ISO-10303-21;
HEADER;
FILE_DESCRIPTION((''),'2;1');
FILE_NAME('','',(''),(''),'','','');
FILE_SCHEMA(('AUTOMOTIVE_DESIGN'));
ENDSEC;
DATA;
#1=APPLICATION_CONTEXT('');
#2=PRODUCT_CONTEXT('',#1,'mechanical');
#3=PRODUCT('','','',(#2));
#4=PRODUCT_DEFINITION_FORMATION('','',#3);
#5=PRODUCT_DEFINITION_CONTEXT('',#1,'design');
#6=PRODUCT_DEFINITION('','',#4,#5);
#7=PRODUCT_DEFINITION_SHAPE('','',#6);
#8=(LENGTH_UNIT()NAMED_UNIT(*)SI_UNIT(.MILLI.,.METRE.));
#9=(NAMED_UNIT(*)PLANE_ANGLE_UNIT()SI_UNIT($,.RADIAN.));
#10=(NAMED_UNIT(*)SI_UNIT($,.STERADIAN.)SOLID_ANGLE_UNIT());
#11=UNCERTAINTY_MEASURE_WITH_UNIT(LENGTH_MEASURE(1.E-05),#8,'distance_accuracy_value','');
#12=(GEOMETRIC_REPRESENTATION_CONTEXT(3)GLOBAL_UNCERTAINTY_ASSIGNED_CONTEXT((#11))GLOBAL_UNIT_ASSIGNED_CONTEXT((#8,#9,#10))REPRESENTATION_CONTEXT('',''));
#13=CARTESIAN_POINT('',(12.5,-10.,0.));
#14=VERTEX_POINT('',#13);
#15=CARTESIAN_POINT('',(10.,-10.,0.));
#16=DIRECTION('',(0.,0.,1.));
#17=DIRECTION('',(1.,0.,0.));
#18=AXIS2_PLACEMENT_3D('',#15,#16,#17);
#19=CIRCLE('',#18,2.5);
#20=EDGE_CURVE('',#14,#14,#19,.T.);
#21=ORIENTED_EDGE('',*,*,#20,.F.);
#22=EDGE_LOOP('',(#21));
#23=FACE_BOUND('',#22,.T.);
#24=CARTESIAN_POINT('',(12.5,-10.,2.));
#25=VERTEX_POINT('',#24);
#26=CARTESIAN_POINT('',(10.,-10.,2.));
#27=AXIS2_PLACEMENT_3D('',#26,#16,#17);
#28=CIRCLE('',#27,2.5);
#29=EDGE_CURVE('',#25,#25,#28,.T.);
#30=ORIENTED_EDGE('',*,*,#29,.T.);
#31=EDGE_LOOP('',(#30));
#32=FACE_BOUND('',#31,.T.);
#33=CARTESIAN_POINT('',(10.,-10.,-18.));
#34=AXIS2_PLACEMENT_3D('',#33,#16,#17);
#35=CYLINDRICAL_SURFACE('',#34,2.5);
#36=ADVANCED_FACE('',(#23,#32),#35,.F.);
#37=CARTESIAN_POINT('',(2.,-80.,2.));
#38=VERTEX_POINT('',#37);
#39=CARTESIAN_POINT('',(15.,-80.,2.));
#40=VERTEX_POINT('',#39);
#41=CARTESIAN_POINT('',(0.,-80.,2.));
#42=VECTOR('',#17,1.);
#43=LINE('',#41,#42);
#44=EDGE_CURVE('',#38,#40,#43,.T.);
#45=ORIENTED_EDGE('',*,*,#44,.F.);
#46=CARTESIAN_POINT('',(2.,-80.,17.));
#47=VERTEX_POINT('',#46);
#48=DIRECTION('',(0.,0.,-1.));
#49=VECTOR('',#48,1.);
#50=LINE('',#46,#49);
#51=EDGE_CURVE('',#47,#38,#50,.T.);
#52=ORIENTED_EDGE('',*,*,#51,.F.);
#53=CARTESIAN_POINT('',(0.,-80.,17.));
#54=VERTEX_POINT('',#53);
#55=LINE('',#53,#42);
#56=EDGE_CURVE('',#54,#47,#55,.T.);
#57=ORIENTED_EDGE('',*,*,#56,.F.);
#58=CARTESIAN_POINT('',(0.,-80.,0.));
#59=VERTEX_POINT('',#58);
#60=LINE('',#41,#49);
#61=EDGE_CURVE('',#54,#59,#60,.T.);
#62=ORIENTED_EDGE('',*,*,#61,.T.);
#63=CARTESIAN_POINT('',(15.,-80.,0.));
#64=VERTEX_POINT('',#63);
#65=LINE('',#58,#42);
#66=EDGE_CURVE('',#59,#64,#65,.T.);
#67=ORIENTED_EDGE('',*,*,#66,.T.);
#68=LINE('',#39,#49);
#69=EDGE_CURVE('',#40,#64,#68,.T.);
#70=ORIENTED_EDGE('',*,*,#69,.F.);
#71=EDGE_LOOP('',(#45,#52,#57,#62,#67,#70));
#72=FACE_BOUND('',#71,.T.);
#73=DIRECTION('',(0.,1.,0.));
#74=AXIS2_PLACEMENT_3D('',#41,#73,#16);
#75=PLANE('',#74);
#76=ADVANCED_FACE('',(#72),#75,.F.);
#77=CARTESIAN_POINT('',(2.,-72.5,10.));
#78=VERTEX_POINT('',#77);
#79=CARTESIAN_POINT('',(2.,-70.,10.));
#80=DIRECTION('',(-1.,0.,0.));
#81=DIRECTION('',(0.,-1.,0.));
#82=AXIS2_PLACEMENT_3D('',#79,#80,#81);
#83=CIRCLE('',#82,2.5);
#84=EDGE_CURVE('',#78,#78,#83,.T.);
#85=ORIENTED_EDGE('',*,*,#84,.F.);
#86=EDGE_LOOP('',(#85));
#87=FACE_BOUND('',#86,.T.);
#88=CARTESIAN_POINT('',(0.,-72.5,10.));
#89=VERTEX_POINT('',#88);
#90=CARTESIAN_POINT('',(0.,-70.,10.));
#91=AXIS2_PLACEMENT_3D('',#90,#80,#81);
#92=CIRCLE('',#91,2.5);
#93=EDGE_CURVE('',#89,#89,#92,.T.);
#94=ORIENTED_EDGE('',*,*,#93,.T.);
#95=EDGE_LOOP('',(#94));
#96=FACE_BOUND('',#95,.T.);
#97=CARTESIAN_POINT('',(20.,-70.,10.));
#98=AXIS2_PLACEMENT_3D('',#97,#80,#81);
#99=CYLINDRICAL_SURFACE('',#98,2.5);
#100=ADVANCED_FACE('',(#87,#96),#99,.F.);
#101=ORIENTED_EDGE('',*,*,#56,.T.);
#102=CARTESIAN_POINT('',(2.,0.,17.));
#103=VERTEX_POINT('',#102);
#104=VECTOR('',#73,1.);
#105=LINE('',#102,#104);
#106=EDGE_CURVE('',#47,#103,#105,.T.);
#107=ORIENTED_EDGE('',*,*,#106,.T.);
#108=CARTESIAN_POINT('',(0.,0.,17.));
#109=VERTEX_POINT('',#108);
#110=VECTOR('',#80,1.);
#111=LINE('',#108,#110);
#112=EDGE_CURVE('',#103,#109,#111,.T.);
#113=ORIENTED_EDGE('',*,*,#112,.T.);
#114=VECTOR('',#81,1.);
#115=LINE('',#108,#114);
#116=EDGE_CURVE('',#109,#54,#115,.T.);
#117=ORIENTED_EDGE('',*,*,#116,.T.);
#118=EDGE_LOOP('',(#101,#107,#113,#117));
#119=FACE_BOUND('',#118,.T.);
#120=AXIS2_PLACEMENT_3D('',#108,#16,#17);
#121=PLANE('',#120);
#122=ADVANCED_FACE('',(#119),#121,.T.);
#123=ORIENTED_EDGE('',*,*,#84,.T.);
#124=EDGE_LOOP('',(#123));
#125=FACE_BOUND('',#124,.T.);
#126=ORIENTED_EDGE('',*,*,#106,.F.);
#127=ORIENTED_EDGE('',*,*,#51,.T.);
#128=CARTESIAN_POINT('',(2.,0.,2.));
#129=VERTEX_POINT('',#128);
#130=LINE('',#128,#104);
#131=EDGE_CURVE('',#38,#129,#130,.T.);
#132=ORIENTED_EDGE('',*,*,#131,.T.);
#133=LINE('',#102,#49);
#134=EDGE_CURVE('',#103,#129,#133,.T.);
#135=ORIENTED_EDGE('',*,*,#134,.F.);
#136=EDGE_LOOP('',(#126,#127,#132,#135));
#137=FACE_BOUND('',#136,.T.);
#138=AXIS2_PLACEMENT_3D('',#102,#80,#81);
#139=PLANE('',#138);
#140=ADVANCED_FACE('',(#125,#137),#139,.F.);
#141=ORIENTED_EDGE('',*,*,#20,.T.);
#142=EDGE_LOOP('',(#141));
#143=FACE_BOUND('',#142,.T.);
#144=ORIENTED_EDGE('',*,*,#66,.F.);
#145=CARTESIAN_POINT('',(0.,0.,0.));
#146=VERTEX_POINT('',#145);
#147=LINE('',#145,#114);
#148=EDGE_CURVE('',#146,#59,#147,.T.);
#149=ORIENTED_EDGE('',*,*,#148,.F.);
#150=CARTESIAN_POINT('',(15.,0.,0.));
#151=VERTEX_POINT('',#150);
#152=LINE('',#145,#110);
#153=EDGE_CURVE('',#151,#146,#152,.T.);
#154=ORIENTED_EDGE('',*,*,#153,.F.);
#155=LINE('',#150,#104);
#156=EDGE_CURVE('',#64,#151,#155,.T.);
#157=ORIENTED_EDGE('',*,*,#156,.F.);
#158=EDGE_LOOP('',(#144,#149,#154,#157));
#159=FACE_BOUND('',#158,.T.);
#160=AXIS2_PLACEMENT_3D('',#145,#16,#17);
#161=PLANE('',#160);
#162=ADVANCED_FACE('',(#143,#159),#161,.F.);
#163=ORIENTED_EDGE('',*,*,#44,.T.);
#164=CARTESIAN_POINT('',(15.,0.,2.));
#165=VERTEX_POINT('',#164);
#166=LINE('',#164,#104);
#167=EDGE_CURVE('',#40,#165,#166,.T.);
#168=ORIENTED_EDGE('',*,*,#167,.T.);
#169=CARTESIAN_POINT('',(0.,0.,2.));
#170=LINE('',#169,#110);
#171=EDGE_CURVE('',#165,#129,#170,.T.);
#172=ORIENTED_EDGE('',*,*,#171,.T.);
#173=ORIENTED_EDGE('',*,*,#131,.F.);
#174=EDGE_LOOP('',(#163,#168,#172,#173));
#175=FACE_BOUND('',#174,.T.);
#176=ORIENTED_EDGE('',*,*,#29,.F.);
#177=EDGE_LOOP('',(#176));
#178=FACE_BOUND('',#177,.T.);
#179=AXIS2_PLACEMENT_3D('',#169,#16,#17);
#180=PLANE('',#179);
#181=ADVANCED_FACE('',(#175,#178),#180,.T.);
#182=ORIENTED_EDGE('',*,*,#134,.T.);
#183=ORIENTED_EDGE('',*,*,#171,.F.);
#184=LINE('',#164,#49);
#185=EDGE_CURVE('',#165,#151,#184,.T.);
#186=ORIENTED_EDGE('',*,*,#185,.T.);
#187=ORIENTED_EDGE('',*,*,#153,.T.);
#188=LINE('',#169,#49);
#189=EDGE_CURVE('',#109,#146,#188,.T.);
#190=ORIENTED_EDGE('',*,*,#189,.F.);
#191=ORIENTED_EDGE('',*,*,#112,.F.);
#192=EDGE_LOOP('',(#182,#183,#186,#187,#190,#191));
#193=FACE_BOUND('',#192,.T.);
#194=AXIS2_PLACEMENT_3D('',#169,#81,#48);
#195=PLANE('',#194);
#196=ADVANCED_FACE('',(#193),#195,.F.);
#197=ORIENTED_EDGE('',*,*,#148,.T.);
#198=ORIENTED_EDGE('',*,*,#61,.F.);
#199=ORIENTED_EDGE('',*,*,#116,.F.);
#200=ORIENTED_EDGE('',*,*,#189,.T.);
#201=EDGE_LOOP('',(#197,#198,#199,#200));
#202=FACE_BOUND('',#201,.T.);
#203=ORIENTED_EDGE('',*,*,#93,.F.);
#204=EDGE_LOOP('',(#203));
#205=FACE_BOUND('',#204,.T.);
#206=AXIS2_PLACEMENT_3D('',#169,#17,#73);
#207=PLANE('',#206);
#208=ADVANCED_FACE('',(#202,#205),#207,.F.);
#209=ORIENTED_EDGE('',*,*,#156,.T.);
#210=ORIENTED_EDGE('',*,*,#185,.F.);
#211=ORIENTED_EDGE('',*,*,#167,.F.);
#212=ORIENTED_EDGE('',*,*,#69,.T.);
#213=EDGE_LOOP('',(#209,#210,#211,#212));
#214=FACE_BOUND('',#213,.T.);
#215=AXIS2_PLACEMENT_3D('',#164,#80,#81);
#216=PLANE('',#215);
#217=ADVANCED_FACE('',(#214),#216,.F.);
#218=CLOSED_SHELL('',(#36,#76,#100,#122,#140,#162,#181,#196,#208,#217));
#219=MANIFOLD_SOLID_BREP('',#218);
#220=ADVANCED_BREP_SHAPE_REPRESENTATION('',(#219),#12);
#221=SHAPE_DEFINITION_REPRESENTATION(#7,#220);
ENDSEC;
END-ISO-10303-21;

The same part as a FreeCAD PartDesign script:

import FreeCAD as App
import Part
import Sketcher
Q = App.Units.Quantity

doc = App.newDocument("Part")
body = doc.addObject("PartDesign::Body", "Body")

sketch1 = doc.addObject("Sketcher::SketchObject", "Sketch")
body.addObject(sketch1)
sketch1.AttachmentSupport = (doc.XY_Plane, [""])
sketch1.MapMode = "FlatFace"
sketch1.addGeometry([
    Part.LineSegment(App.Vector(0, 0, 0), App.Vector(0, -80, 0)),
    Part.LineSegment(App.Vector(0, -80, 0), App.Vector(15, -80, 0)),
    Part.LineSegment(App.Vector(15, -80, 0), App.Vector(15, 0, 0)),
    Part.LineSegment(App.Vector(15, 0, 0), App.Vector(0, 0, 0)),
], False)
sketch1.addConstraint([
    Sketcher.Constraint("Coincident", 0, 2, 1, 1),
    Sketcher.Constraint("Coincident", 1, 2, 2, 1),
    Sketcher.Constraint("Coincident", 2, 2, 3, 1),
    Sketcher.Constraint("Coincident", 3, 2, 0, 1),
    Sketcher.Constraint("Vertical", 0),
    Sketcher.Constraint("Horizontal", 1),
    Sketcher.Constraint("Vertical", 2),
    Sketcher.Constraint("Horizontal", 3),
    Sketcher.Constraint("Coincident", 3, 2, -1, 1),
    Sketcher.Constraint("DistanceX", 1, 1, 1, 2, Q("15 mm")),
    Sketcher.Constraint("DistanceY", 0, 2, 0, 1, Q("80 mm")),
])
pad1 = doc.addObject("PartDesign::Pad", "Pad")
body.addObject(pad1)
pad1.Profile = sketch1
pad1.Length = 2

sketch2 = doc.addObject("Sketcher::SketchObject", "Sketch001")
body.addObject(sketch2)
sketch2.AttachmentSupport = (doc.XY_Plane, [""])
sketch2.MapMode = "FlatFace"
sketch2.AttachmentOffset = App.Placement(App.Vector(0, 0, 2), App.Rotation())
sketch2.addGeometry([
    Part.LineSegment(App.Vector(0, 0, 0), App.Vector(0, -80, 0)),
    Part.LineSegment(App.Vector(0, -80, 0), App.Vector(2, -80, 0)),
    Part.LineSegment(App.Vector(2, -80, 0), App.Vector(2, 0, 0)),
    Part.LineSegment(App.Vector(2, 0, 0), App.Vector(0, 0, 0)),
], False)
sketch2.addConstraint([
    Sketcher.Constraint("Coincident", 0, 2, 1, 1),
    Sketcher.Constraint("Coincident", 1, 2, 2, 1),
    Sketcher.Constraint("Coincident", 2, 2, 3, 1),
    Sketcher.Constraint("Coincident", 3, 2, 0, 1),
    Sketcher.Constraint("Vertical", 0),
    Sketcher.Constraint("Horizontal", 1),
    Sketcher.Constraint("Vertical", 2),
    Sketcher.Constraint("Horizontal", 3),
    Sketcher.Constraint("Coincident", 3, 2, -1, 1),
    Sketcher.Constraint("DistanceX", 1, 1, 1, 2, Q("2 mm")),
    Sketcher.Constraint("DistanceY", 0, 2, 0, 1, Q("80 mm")),
])
pad2 = doc.addObject("PartDesign::Pad", "Pad001")
body.addObject(pad2)
pad2.Profile = sketch2
pad2.Length = 15

sketch3 = doc.addObject("Sketcher::SketchObject", "Sketch002")
body.addObject(sketch3)
sketch3.AttachmentSupport = (doc.XY_Plane, [""])
sketch3.MapMode = "FlatFace"
sketch3.AttachmentOffset = App.Placement(App.Vector(0, 0, 2), App.Rotation())
sketch3.addGeometry(Part.Circle(App.Vector(10, -10, 0), App.Vector(0, 0, 1), 2.5), False)
sketch3.addConstraint([
    Sketcher.Constraint("Diameter", 0, Q("5 mm")),
    Sketcher.Constraint("DistanceX", -1, 1, 0, 3, Q("10 mm")),
    Sketcher.Constraint("DistanceY", 0, 3, -1, 1, Q("10 mm")),
])
pocket1 = doc.addObject("PartDesign::Pocket", "Pocket")
body.addObject(pocket1)
pocket1.Profile = sketch3
pocket1.Length = 20

sketch4 = doc.addObject("Sketcher::SketchObject", "Sketch003")
body.addObject(sketch4)
sketch4.AttachmentSupport = (doc.YZ_Plane, [""])
sketch4.MapMode = "FlatFace"
sketch4.addGeometry(Part.Circle(App.Vector(-70, 10, 0), App.Vector(0, 0, 1), 2.5), False)
sketch4.addConstraint([
    Sketcher.Constraint("Diameter", 0, Q("5 mm")),
    Sketcher.Constraint("DistanceX", 0, 3, -1, 1, Q("70 mm")),
    Sketcher.Constraint("DistanceY", -1, 1, 0, 3, Q("10 mm")),
])
pocket2 = doc.addObject("PartDesign::Pocket", "Pocket001")
body.addObject(pocket2)
pocket2.Profile = sketch4
pocket2.Length = 20
pocket2.Reversed = True

doc.recompute()
